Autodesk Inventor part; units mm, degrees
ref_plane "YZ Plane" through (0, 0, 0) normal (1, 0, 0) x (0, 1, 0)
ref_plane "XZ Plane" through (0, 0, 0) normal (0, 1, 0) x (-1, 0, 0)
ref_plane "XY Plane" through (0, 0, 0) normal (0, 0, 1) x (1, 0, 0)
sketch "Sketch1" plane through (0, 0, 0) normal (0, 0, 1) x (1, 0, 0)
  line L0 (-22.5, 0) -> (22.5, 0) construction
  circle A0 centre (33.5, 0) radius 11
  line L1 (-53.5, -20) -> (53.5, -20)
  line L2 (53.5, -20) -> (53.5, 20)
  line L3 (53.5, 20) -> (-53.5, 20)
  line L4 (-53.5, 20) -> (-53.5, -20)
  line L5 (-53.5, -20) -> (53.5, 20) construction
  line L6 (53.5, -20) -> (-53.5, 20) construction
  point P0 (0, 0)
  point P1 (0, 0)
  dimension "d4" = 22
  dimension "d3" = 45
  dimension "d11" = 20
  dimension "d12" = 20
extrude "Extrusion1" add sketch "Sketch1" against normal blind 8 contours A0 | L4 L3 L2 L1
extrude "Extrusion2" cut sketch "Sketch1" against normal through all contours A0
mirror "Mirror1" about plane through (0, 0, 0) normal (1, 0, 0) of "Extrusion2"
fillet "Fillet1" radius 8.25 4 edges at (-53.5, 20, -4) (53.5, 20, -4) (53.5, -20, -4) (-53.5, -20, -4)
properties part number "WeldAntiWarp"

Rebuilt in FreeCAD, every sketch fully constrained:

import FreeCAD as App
import Part
import Sketcher
from FreeCAD import Vector


def edges_at(feature, points):
    """Names of the edges that pass closest to the given points."""
    edges = feature.Shape.Edges
    near = lambda p: min(range(len(edges)), key=lambda i: edges[i].distToShape(Part.Vertex(*p))[0])
    return sorted({f"Edge{near(p) + 1}" for p in points})


def add_polygon(sketch, points):
    """Adds a closed chain of lines whose ends are joined by coincident constraints."""
    first, n = sketch.GeometryCount, len(points)
    for a, b in zip(points, points[1:] + points[:1]):
        sketch.addGeometry(Part.LineSegment(App.Vector(*a, 0), App.Vector(*b, 0)), False)
    for i in range(n):
        sketch.addConstraint(Sketcher.Constraint("Coincident", first + i, 2, first + (i + 1) % n, 1))

doc = App.newDocument("Part")
params = doc.addObject("Spreadsheet::Sheet", "Params")
for row, (alias, value) in enumerate([
    ("sketch1_width", "107 mm"),
    ("pad1_length", "8 mm"),
    ("sketch2_diameter", "22 mm"),
    ("fillet_radius", "8.25 mm"),
], start=1):
    params.set(f"A{row}", alias)
    params.set(f"B{row}", "=" + value)
    params.setAlias(f"B{row}", alias)

body = doc.addObject("PartDesign::Body", "Body")

sketch1 = body.newObject("Sketcher::SketchObject", "Sketch")
sketch1.AttachmentSupport = (doc.getObject("XY_Plane"), [""])
sketch1.MapMode = "FlatFace"
add_polygon(sketch1, [(-54, 20), (-54, -20), (54, -20), (54, 20)])
sketch1.addConstraint([
    Sketcher.Constraint("Vertical", 0),
    Sketcher.Constraint("Horizontal", 1),
    Sketcher.Constraint("Vertical", 2),
    Sketcher.Constraint("Horizontal", 3),
    Sketcher.Constraint("Symmetric", 0, 2, 2, 2, -1, 1),
    Sketcher.Constraint("DistanceY", 0, 2, -1, 1, 20.0),
    Sketcher.Constraint("DistanceX", 1, 1, 1, 2, 107.0),
])
sketch1.setExpression("Constraints[10]", "Params.sketch1_width")
pad1 = body.newObject("PartDesign::Pad", "Pad")
pad1.Profile = sketch1
pad1.setExpression("Length", "Params.pad1_length")
pad1.Reversed = True

sketch2 = body.newObject("Sketcher::SketchObject", "Sketch001")
sketch2.AttachmentSupport = (doc.getObject("XY_Plane"), [""])
sketch2.MapMode = "FlatFace"
sketch2.addGeometry(Part.Circle(Vector(34, 0, 0), Vector(0, 0, 1), 11), False)
sketch2.addConstraint([
    Sketcher.Constraint("PointOnObject", 0, 3, -1),
    Sketcher.Constraint("Diameter", 0, 22.0),
    Sketcher.Constraint("DistanceX", -1, 1, 0, 3, 33.5),
])
sketch2.setExpression("Constraints[1]", "Params.sketch2_diameter")
pocket1 = body.newObject("PartDesign::Pocket", "Pocket")
pocket1.Profile = sketch2
pocket1.Type = "ThroughAll"
doc.recompute()

mirrored = body.newObject("PartDesign::Mirrored", "Mirrored")
mirrored.Originals = [pocket1]
mirrored.MirrorPlane = (doc.getObject("YZ_Plane"), [""])
body.Tip = mirrored
doc.recompute()

fillet = body.newObject("PartDesign::Fillet", "Fillet")
fillet.Base = (mirrored, edges_at(mirrored, [
    (-53.5, 20, -4),
    (53.5, 20, -4),
    (53.5, -20, -4),
    (-53.5, -20, -4),
]))
fillet.setExpression("Radius", "Params.fillet_radius")

doc.recompute()
